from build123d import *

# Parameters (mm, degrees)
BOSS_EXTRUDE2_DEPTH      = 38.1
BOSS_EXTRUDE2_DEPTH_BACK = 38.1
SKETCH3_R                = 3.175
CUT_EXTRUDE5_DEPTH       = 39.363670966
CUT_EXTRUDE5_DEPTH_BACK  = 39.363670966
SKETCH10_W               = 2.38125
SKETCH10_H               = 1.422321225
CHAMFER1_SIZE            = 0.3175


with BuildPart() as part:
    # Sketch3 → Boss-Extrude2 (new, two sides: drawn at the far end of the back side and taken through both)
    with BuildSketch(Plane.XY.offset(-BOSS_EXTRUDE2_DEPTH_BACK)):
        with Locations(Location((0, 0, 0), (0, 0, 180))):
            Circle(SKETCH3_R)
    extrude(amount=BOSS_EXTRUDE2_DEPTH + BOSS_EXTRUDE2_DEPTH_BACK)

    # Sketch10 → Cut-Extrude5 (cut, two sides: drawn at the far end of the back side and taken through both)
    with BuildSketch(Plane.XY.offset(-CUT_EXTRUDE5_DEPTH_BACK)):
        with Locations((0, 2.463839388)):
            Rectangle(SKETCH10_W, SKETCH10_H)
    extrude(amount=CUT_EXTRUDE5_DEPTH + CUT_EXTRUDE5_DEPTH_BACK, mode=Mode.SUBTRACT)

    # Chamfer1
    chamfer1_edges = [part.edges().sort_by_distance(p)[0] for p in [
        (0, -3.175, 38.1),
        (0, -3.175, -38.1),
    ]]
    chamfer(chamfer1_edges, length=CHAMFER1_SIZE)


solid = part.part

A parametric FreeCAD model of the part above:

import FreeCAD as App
import Part
import Sketcher
from FreeCAD import Vector
Q = App.Units.Quantity


def edges_at(feature, points):
    """Names of the edges that pass closest to the given points."""
    edges = feature.Shape.Edges
    near = lambda p: min(range(len(edges)), key=lambda i: edges[i].distToShape(Part.Vertex(*p))[0])
    return sorted({f"Edge{near(p) + 1}" for p in points})

doc = App.newDocument("Part")
body = doc.addObject("PartDesign::Body", "Body")

# Sketch on XY plane
sketch1 = body.newObject("Sketcher::SketchObject", "Sketch")
sketch1.AttachmentSupport = (doc.getObject("XY_Plane"), [""])
sketch1.MapMode = "FlatFace"
sketch1.addGeometry(Part.Circle(Vector(0, 0, 0), Vector(0, 0, 1), 3.2), False)
sketch1.addConstraint(Sketcher.Constraint("Coincident", 0, 3, -1, 1))
sketch1.addConstraint(Sketcher.Constraint("Diameter", 0, Q("0.25 in")))
pad1 = body.newObject("PartDesign::Pad", "Pad")
pad1.Profile = sketch1
pad1.Type = "TwoLengths"
pad1.Length = Q("1.5 in")
pad1.Length2 = Q("1.5 in")

# Sketch on XY plane
sketch2 = body.newObject("Sketcher::SketchObject", "Sketch001")
sketch2.AttachmentSupport = (doc.getObject("XY_Plane"), [""])
sketch2.MapMode = "FlatFace"
sketch2.addGeometry(Part.LineSegment(Vector(-1.2, 3.2, 0), Vector(-1.2, 1.8, 0)), False)
sketch2.addGeometry(Part.LineSegment(Vector(-1.2, 1.8, 0), Vector(1.2, 1.8, 0)), False)
sketch2.addGeometry(Part.LineSegment(Vector(1.2, 1.8, 0), Vector(1.2, 3.2, 0)), False)
sketch2.addGeometry(Part.LineSegment(Vector(1.2, 3.2, 0), Vector(-1.2, 3.2, 0)), False)
sketch2.addConstraint(Sketcher.Constraint("Coincident", 0, 2, 1, 1))
sketch2.addConstraint(Sketcher.Constraint("Coincident", 1, 2, 2, 1))
sketch2.addConstraint(Sketcher.Constraint("Coincident", 2, 2, 3, 1))
sketch2.addConstraint(Sketcher.Constraint("Coincident", 3, 2, 0, 1))
sketch2.addConstraint(Sketcher.Constraint("Vertical", 0))
sketch2.addConstraint(Sketcher.Constraint("Horizontal", 1))
sketch2.addConstraint(Sketcher.Constraint("Vertical", 2))
sketch2.addConstraint(Sketcher.Constraint("Horizontal", 3))
sketch2.addConstraint(Sketcher.Constraint("DistanceX", 1, 1, 1, 2, Q("0.09375 in")))
sketch2.addConstraint(Sketcher.Constraint("DistanceX", 0, 2, -1, 1, Q("0.046875 in")))
sketch2.addConstraint(Sketcher.Constraint("DistanceY", -1, 1, 2, 2, Q("0.125 in")))
sketch2.addConstraint(Sketcher.Constraint("DistanceY", 0, 2, 0, 1, Q("1.422321 mm")))
pocket1 = body.newObject("PartDesign::Pocket", "Pocket")
pocket1.Profile = sketch2
pocket1.Type = "ThroughAll"
pocket1.Midplane = True
doc.recompute()

chamfer = body.newObject("PartDesign::Chamfer", "Chamfer")
chamfer.Base = (pocket1, edges_at(pocket1, [(0, -3.175, 38.1), (0, -3.175, -38.1)]))
chamfer.Size = Q("0.0125 in")

doc.recompute()
